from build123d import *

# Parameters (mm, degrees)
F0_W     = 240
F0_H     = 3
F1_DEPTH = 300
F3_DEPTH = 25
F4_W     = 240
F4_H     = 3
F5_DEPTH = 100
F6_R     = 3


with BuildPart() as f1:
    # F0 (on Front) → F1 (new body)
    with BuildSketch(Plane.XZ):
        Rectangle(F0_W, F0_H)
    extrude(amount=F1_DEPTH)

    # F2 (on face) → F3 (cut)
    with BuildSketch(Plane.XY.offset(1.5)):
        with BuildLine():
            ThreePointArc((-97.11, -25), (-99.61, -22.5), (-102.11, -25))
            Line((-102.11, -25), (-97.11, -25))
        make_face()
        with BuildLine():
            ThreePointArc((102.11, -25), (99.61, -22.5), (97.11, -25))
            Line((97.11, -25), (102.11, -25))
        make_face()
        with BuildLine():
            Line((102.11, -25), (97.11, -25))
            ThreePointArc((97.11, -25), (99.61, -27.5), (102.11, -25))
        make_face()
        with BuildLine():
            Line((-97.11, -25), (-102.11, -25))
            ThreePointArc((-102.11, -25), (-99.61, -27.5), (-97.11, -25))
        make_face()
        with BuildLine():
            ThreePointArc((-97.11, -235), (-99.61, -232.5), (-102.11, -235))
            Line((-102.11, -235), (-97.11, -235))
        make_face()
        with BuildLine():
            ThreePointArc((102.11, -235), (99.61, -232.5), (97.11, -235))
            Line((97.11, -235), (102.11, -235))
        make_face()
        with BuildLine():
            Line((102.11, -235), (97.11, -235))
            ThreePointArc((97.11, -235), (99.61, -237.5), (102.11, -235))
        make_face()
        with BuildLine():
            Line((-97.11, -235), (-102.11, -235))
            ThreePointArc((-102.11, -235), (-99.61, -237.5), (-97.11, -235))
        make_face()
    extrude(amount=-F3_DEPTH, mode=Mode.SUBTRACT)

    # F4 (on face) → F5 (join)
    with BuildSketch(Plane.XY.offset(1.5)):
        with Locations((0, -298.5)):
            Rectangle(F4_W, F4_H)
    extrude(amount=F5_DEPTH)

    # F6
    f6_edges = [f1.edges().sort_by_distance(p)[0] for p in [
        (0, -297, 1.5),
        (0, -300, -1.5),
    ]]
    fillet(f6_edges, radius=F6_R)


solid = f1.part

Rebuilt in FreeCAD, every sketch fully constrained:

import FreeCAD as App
import Part
import Sketcher
Q = App.Units.Quantity


def edges_at(feature, points):
    """Names of the edges that pass closest to the given points."""
    edges = feature.Shape.Edges
    near = lambda p: min(range(len(edges)), key=lambda i: edges[i].distToShape(Part.Vertex(*p))[0])
    return sorted({f"Edge{near(p) + 1}" for p in points})


def add_polygon(sketch, points):
    """Adds a closed chain of lines whose ends are joined by coincident constraints."""
    first, n = sketch.GeometryCount, len(points)
    for a, b in zip(points, points[1:] + points[:1]):
        sketch.addGeometry(Part.LineSegment(App.Vector(*a, 0), App.Vector(*b, 0)), False)
    for i in range(n):
        sketch.addConstraint(Sketcher.Constraint("Coincident", first + i, 2, first + (i + 1) % n, 1))

doc = App.newDocument("Part")
body = doc.addObject("PartDesign::Body", "Body")

# Sketch on XZ plane
sketch1 = body.newObject("Sketcher::SketchObject", "Sketch")
sketch1.AttachmentSupport = (doc.getObject("XZ_Plane"), [""])
sketch1.MapMode = "FlatFace"
add_polygon(sketch1, [(-120, 1.5), (-120, -1.5), (120, -1.5), (120, 1.5)])  # lines 0-3
sketch1.addConstraint([
    Sketcher.Constraint("Vertical", 0),
    Sketcher.Constraint("Horizontal", 1),
    Sketcher.Constraint("Vertical", 2),
    Sketcher.Constraint("Horizontal", 3),
    Sketcher.Constraint("Symmetric", 0, 2, 2, 2, -1, 1),
    Sketcher.Constraint("DistanceX", 1, 1, 1, 2, Q("240 mm")),
    Sketcher.Constraint("DistanceY", 0, 2, 0, 1, Q("3 mm")),
])
pad1 = body.newObject("PartDesign::Pad", "Pad")
pad1.Profile = sketch1
pad1.Length = 300

# Sketch on XY plane
sketch2 = body.newObject("Sketcher::SketchObject", "Sketch001")
sketch2.AttachmentSupport = (doc.getObject("XY_Plane"), [""])
sketch2.MapMode = "FlatFace"
sketch2.AttachmentOffset = App.Placement(App.Vector(0, 0, 1.5), App.Rotation())
sketch2.addGeometry([
    Part.Circle(App.Vector(-99.6, -25, 0), App.Vector(0, 0, 1), 2.5),
    Part.Circle(App.Vector(99.6, -25, 0), App.Vector(0, 0, 1), 2.5),
    Part.Circle(App.Vector(-99.6, -235, 0), App.Vector(0, 0, 1), 2.5),
    Part.Circle(App.Vector(99.6, -235, 0), App.Vector(0, 0, 1), 2.5),
], False)
sketch2.addConstraint([
    Sketcher.Constraint("Equal", 0, 1),
    Sketcher.Constraint("Equal", 1, 2),
    Sketcher.Constraint("Equal", 2, 3),
    Sketcher.Constraint("Symmetric", 0, 3, 1, 3, -2),
    Sketcher.Constraint("Symmetric", 2, 3, 3, 3, -2),
    Sketcher.Constraint("Vertical", 0, 3, 2, 3),
    Sketcher.Constraint("Diameter", 0, Q("5 mm")),
    Sketcher.Constraint("DistanceY", 0, 3, -1, 1, Q("25 mm")),
    Sketcher.Constraint("DistanceY", 2, 3, -1, 1, Q("235 mm")),
    Sketcher.Constraint("DistanceX", 0, 3, -1, 1, Q("99.61 mm")),
])
pocket1 = body.newObject("PartDesign::Pocket", "Pocket")
pocket1.Profile = sketch2
pocket1.Length = 25

# Sketch on XY plane
sketch3 = body.newObject("Sketcher::SketchObject", "Sketch002")
sketch3.AttachmentSupport = (doc.getObject("XY_Plane"), [""])
sketch3.MapMode = "FlatFace"
sketch3.AttachmentOffset = App.Placement(App.Vector(0, 0, 1.5), App.Rotation())
add_polygon(sketch3, [(-120, -297), (-120, -300), (120, -300), (120, -297)])  # lines 0-3
sketch3.addConstraint([
    Sketcher.Constraint("Vertical", 0),
    Sketcher.Constraint("Horizontal", 1),
    Sketcher.Constraint("Vertical", 2),
    Sketcher.Constraint("Horizontal", 3),
    Sketcher.Constraint("DistanceX", 1, 1, 1, 2, Q("240 mm")),
    Sketcher.Constraint("DistanceY", 0, 2, 0, 1, Q("3 mm")),
    Sketcher.Constraint("DistanceX", 0, 2, -1, 1, Q("120 mm")),
    Sketcher.Constraint("DistanceY", 0, 2, -1, 1, Q("300 mm")),
])
pad2 = body.newObject("PartDesign::Pad", "Pad001")
pad2.Profile = sketch3
pad2.Length = 100
doc.recompute()

fillet = body.newObject("PartDesign::Fillet", "Fillet")
fillet.Base = (pad2, edges_at(pad2, [(0, -297, 1.5), (0, -300, -1.5)]))
fillet.Radius = 3

doc.recompute()
